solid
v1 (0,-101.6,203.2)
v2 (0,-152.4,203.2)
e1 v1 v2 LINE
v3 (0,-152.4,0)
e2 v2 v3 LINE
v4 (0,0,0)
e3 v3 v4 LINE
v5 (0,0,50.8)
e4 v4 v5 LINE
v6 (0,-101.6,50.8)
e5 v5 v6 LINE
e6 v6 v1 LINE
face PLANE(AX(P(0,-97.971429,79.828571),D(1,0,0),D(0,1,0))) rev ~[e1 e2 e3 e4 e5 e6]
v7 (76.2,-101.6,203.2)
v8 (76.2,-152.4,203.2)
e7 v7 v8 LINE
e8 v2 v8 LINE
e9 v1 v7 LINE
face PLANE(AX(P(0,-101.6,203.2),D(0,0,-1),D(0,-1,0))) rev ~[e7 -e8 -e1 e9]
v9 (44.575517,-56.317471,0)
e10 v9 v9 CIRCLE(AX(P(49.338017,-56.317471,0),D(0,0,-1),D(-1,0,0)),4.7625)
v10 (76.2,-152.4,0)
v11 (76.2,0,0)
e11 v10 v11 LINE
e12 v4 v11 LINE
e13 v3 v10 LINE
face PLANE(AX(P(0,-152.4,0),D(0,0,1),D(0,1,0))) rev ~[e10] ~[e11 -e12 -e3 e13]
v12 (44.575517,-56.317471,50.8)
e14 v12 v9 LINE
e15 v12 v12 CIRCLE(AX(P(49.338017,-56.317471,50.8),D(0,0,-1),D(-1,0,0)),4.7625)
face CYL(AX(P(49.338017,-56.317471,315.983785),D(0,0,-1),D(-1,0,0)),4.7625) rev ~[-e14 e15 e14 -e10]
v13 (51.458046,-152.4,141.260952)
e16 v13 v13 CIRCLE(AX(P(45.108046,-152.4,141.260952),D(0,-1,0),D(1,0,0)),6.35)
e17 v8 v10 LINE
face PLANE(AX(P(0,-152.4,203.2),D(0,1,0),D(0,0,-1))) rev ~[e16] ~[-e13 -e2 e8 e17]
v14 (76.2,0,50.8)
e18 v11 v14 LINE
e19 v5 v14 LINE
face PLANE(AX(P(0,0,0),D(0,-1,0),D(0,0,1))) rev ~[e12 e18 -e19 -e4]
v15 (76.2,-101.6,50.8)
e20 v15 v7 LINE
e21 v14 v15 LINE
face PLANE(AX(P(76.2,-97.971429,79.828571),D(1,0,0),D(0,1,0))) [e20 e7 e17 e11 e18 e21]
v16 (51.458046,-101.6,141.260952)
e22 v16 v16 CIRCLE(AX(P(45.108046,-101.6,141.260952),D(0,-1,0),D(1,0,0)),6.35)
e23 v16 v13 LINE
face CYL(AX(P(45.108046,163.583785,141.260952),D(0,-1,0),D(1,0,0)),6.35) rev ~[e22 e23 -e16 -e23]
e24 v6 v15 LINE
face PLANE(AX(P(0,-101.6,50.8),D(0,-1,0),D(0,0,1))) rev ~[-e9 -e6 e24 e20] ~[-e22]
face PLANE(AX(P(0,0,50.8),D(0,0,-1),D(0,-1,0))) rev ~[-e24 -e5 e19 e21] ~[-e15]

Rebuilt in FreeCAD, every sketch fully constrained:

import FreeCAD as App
import Part
import Sketcher
Q = App.Units.Quantity

doc = App.newDocument("Part")
body = doc.addObject("PartDesign::Body", "Body")

# Sketch on YZ plane
sketch1 = doc.addObject("Sketcher::SketchObject", "Sketch")
body.addObject(sketch1)
sketch1.AttachmentSupport = (doc.YZ_Plane, [""])
sketch1.MapMode = "FlatFace"
sketch1.addGeometry(Part.LineSegment(App.Vector(-152, 203, 0), App.Vector(-152, 0, 0)), False)
sketch1.addGeometry(Part.LineSegment(App.Vector(-152, 0, 0), App.Vector(0, 0, 0)), False)
sketch1.addGeometry(Part.LineSegment(App.Vector(0, 0, 0), App.Vector(0, 51, 0)), False)
sketch1.addGeometry(Part.LineSegment(App.Vector(0, 51, 0), App.Vector(-102, 51, 0)), False)
sketch1.addGeometry(Part.LineSegment(App.Vector(-102, 51, 0), App.Vector(-102, 203, 0)), False)
sketch1.addGeometry(Part.LineSegment(App.Vector(-102, 203, 0), App.Vector(-152, 203, 0)), False)
sketch1.addConstraint(Sketcher.Constraint("Coincident", 0, 2, 1, 1))
sketch1.addConstraint(Sketcher.Constraint("Coincident", 1, 2, 2, 1))
sketch1.addConstraint(Sketcher.Constraint("Coincident", 2, 2, 3, 1))
sketch1.addConstraint(Sketcher.Constraint("Coincident", 3, 2, 4, 1))
sketch1.addConstraint(Sketcher.Constraint("Coincident", 4, 2, 5, 1))
sketch1.addConstraint(Sketcher.Constraint("Coincident", 5, 2, 0, 1))
sketch1.addConstraint(Sketcher.Constraint("Vertical", 0))
sketch1.addConstraint(Sketcher.Constraint("Horizontal", 1))
sketch1.addConstraint(Sketcher.Constraint("Vertical", 2))
sketch1.addConstraint(Sketcher.Constraint("Horizontal", 3))
sketch1.addConstraint(Sketcher.Constraint("Vertical", 4))
sketch1.addConstraint(Sketcher.Constraint("Horizontal", 5))
sketch1.addConstraint(Sketcher.Constraint("Coincident", 1, 2, -1, 1))
sketch1.addConstraint(Sketcher.Constraint("Equal", 5, 2))
sketch1.addConstraint(Sketcher.Constraint("Equal", 1, 4))
sketch1.addConstraint(Sketcher.Constraint("DistanceX", 1, 1, 1, 2, Q("6 in")))
sketch1.addConstraint(Sketcher.Constraint("DistanceX", 3, 2, 3, 1, Q("4 in")))
pad1 = doc.addObject("PartDesign::Pad", "Pad")
body.addObject(pad1)
pad1.Profile = sketch1
pad1.Length = Q("3 in")

# Sketch on XY plane
sketch2 = doc.addObject("Sketcher::SketchObject", "Sketch001")
body.addObject(sketch2)
sketch2.AttachmentSupport = (doc.XY_Plane, [""])
sketch2.MapMode = "FlatFace"
sketch2.AttachmentOffset = App.Placement(App.Vector(0, 0, 2 * 25.4), App.Rotation())
sketch2.addGeometry(Part.Circle(App.Vector(49.3, -56.3, 0), App.Vector(0, 0, 1), 4.8), False)
sketch2.addConstraint(Sketcher.Constraint("Diameter", 0, Q("0.375 in")))
sketch2.addConstraint(Sketcher.Constraint("DistanceY", 0, 3, -1, 1, Q("56.317471 mm")))
sketch2.addConstraint(Sketcher.Constraint("DistanceX", -1, 1, 0, 3, Q("49.338017 mm")))
doc.recompute()
hole = doc.addObject("PartDesign::Hole", "Hole")
body.addObject(hole)
hole.Profile = sketch2
hole.ThreadType = "None"
hole.Diameter = Q("0.375 in")
hole.DepthType = "ThroughAll"

# Sketch on XZ plane
sketch3 = doc.addObject("Sketcher::SketchObject", "Sketch002")
body.addObject(sketch3)
sketch3.AttachmentSupport = (doc.XZ_Plane, [""])
sketch3.MapMode = "FlatFace"
sketch3.AttachmentOffset = App.Placement(App.Vector(0, 0, 4 * 25.4), App.Rotation())
sketch3.addGeometry(Part.Circle(App.Vector(45, 141, 0), App.Vector(0, 0, 1), 6), False)
sketch3.addConstraint(Sketcher.Constraint("Diameter", 0, Q("0.5 in")))
sketch3.addConstraint(Sketcher.Constraint("DistanceY", -1, 1, 0, 3, Q("141.260952 mm")))
sketch3.addConstraint(Sketcher.Constraint("DistanceX", -1, 1, 0, 3, Q("45.108046 mm")))
doc.recompute()
hole2 = doc.addObject("PartDesign::Hole", "Hole001")
body.addObject(hole2)
hole2.Profile = sketch3
hole2.ThreadType = "None"
hole2.Diameter = Q("0.5 in")
hole2.DepthType = "ThroughAll"
hole2.Reversed = True

doc.recompute()
